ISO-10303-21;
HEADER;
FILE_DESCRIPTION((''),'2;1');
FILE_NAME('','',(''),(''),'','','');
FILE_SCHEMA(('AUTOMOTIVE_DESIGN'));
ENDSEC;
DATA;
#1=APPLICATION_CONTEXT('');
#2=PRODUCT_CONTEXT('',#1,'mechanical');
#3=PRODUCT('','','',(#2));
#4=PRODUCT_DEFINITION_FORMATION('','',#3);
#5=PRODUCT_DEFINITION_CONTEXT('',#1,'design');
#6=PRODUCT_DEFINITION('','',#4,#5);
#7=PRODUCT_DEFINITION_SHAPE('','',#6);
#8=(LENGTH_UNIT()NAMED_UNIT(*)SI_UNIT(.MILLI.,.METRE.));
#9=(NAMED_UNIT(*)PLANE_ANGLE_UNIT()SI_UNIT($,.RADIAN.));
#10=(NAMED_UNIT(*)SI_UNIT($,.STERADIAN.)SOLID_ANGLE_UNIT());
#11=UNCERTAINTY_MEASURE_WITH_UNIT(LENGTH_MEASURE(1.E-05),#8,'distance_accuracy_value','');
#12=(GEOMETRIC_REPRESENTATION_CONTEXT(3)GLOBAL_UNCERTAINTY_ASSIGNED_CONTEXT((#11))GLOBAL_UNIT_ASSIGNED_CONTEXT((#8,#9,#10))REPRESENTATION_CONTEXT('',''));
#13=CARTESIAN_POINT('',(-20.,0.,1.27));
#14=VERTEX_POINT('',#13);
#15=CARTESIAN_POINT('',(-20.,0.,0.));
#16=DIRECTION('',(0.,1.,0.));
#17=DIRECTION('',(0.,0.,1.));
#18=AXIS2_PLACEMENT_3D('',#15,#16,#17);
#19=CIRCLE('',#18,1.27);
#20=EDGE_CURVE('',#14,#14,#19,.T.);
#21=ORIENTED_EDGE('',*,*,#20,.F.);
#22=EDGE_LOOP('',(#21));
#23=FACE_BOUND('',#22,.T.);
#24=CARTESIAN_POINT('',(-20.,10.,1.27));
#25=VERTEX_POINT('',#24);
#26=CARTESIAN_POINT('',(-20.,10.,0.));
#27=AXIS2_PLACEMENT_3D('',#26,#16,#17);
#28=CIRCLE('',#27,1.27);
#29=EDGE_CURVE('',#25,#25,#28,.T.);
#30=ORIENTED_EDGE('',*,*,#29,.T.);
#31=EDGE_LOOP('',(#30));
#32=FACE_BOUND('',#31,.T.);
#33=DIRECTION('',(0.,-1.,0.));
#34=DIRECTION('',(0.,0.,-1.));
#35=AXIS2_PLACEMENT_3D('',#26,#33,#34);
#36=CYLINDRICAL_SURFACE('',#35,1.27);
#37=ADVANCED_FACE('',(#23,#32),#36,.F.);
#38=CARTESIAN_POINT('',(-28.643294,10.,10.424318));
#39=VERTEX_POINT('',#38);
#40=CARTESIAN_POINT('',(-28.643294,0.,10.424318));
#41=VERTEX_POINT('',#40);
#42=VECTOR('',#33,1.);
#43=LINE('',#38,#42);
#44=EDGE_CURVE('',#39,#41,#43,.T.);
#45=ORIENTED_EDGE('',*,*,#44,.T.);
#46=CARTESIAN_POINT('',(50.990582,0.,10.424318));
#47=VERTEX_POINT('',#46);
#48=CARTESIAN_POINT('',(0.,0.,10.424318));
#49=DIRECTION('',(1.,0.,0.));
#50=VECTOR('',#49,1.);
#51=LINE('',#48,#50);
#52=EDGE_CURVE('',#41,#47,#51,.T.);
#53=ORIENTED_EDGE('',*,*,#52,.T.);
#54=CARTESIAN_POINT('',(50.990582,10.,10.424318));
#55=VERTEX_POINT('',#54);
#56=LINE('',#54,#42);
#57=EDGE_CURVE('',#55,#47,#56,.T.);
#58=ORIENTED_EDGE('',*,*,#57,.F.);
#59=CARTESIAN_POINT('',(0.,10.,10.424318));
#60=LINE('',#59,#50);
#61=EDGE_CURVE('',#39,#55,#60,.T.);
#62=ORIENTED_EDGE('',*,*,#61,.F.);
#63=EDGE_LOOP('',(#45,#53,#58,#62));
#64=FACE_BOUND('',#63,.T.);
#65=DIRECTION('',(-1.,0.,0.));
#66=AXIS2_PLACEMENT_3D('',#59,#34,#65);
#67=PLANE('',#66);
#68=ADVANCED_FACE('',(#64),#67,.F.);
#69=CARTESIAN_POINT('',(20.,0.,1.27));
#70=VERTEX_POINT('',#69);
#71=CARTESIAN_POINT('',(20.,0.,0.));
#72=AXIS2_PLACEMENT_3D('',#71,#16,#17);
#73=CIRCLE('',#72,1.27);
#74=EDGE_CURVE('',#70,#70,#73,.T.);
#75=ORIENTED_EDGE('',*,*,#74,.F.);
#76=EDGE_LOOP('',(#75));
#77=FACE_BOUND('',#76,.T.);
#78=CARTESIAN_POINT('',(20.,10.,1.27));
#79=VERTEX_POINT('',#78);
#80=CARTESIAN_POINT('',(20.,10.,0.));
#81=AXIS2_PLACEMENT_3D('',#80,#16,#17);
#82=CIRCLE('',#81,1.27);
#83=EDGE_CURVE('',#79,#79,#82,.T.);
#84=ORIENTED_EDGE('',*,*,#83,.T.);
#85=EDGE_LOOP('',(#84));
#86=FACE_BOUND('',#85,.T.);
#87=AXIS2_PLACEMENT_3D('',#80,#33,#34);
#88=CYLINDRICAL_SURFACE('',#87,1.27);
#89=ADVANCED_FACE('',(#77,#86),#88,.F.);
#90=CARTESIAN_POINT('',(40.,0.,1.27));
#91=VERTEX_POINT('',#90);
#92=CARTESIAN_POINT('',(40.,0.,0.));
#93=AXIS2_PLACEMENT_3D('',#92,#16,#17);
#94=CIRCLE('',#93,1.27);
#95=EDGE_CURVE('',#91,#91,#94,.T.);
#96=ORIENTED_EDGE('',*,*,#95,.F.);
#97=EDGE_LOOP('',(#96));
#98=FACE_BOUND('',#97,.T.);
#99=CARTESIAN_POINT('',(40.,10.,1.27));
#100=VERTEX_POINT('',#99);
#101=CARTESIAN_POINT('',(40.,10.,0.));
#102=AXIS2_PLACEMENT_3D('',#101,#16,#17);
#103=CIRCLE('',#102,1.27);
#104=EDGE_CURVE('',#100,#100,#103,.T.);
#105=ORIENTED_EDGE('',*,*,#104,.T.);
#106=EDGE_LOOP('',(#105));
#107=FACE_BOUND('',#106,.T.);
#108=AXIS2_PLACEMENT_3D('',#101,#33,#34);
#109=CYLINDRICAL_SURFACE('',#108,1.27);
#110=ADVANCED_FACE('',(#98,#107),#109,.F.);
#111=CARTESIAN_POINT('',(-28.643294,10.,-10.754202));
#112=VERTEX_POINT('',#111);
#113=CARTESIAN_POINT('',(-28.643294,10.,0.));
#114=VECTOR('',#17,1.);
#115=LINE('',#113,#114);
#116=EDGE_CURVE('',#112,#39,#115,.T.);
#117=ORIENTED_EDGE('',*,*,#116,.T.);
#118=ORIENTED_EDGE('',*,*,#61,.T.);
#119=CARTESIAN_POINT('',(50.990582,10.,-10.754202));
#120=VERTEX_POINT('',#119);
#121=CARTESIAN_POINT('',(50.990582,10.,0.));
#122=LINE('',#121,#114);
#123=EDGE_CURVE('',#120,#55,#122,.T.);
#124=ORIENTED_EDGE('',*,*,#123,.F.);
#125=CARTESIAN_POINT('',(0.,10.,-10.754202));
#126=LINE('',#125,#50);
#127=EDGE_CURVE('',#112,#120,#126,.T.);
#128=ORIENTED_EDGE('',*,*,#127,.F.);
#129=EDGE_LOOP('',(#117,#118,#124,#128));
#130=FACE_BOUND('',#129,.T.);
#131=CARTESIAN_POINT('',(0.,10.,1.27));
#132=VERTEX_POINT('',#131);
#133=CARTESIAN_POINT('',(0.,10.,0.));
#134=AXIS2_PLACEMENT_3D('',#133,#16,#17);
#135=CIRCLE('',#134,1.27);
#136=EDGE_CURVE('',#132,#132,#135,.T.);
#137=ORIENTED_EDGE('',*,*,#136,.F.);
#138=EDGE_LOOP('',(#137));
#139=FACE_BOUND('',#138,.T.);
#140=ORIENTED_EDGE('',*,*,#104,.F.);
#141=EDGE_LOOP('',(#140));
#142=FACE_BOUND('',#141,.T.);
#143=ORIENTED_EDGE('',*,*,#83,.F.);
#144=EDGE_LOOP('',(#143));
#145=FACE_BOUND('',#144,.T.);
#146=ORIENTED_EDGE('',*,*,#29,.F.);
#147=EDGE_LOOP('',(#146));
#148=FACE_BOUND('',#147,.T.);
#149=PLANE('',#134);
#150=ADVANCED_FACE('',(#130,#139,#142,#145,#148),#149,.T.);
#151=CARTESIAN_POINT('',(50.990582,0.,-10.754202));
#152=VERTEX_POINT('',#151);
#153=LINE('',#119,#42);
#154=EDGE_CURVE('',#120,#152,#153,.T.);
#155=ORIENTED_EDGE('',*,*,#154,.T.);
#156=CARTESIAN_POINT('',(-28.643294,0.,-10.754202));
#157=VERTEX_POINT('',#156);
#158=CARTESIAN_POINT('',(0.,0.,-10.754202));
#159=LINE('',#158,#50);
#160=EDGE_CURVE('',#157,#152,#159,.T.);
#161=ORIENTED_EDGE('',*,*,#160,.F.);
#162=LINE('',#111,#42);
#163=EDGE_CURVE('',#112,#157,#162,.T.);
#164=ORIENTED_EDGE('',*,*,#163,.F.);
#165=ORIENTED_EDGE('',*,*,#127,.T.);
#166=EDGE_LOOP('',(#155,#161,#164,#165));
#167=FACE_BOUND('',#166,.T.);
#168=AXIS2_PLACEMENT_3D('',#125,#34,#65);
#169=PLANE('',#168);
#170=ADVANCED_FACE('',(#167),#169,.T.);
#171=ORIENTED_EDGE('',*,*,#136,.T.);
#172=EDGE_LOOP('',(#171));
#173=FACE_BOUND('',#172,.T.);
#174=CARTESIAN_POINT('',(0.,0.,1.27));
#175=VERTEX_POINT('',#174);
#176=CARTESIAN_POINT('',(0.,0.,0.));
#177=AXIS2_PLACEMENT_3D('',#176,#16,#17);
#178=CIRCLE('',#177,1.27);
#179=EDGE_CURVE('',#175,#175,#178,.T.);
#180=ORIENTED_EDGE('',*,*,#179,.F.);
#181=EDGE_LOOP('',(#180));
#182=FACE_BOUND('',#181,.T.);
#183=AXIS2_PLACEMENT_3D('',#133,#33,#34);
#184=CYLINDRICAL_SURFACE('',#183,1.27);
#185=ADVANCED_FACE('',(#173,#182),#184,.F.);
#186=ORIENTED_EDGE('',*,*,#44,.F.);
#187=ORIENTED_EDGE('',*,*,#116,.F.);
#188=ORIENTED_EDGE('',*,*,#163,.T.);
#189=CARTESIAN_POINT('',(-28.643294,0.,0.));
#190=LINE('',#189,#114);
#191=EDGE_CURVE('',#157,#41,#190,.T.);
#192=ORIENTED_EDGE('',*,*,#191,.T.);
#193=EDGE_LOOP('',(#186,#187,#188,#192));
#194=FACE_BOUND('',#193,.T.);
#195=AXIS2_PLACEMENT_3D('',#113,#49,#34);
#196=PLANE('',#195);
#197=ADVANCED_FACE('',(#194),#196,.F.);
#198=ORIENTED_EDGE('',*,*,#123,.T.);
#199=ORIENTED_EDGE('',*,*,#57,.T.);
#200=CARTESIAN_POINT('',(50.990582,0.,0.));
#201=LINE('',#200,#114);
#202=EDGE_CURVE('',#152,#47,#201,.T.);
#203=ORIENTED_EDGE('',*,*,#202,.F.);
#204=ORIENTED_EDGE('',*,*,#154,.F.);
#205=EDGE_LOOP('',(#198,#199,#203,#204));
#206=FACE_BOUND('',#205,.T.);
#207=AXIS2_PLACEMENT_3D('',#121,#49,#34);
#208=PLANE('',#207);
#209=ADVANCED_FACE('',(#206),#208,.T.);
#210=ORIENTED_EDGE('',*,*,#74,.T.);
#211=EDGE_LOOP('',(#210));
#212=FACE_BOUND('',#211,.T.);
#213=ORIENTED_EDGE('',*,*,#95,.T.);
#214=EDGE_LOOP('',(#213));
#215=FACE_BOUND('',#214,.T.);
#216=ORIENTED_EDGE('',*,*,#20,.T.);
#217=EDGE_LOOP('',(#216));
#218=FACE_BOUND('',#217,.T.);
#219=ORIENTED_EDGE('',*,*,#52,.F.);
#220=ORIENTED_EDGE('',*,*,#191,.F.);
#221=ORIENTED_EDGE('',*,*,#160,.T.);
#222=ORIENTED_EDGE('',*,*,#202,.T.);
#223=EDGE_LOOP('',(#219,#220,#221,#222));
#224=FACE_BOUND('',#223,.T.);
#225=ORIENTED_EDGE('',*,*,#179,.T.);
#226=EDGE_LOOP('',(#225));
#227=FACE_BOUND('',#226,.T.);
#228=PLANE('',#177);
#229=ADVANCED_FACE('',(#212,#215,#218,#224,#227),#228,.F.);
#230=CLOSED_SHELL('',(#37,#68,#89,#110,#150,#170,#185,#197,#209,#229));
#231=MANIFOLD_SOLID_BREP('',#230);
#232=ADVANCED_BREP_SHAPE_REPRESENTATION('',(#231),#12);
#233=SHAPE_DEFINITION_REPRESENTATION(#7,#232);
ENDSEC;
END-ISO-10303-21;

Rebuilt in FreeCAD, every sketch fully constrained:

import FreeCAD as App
import Part
import Sketcher

V = App.Vector
Q = App.Units.Quantity

doc = App.newDocument("Part")
body = doc.addObject("PartDesign::Body", "Body")

sketch1 = doc.addObject("Sketcher::SketchObject", "Sketch")
body.addObject(sketch1)
sketch1.AttachmentSupport = (doc.XZ_Plane, [""])
sketch1.MapMode = "FlatFace"
sketch1.addGeometry([
    Part.LineSegment(V(-28.6, -10.8, 0), V(-28.6, 10.4, 0)),
    Part.LineSegment(V(-28.6, 10.4, 0), V(51, 10.4, 0)),
    Part.LineSegment(V(51, 10.4, 0), V(51, -10.8, 0)),
    Part.LineSegment(V(51, -10.8, 0), V(-28.6, -10.8, 0)),
    Part.Circle(V(-20, 0, 0), V(0, 0, 1), 1.3),
    Part.Circle(V(0, 0, 0), V(0, 0, 1), 1.3),
    Part.Circle(V(20, 0, 0), V(0, 0, 1), 1.3),
    Part.Circle(V(40, 0, 0), V(0, 0, 1), 1.3),
], False)
sketch1.addConstraint([
    Sketcher.Constraint("Coincident", 0, 2, 1, 1),
    Sketcher.Constraint("Coincident", 1, 2, 2, 1),
    Sketcher.Constraint("Coincident", 2, 2, 3, 1),
    Sketcher.Constraint("Coincident", 3, 2, 0, 1),
    Sketcher.Constraint("Vertical", 0),
    Sketcher.Constraint("Horizontal", 1),
    Sketcher.Constraint("Vertical", 2),
    Sketcher.Constraint("Horizontal", 3),
    Sketcher.Constraint("Coincident", 5, 3, -1, 1),
    Sketcher.Constraint("Equal", 4, 5),
    Sketcher.Constraint("Equal", 5, 6),
    Sketcher.Constraint("Equal", 6, 7),
    Sketcher.Constraint("Symmetric", 4, 3, 6, 3, -1, 1),
    Sketcher.Constraint("PointOnObject", 4, 3, -1),
    Sketcher.Constraint("PointOnObject", 7, 3, -1),
    Sketcher.Constraint("Diameter", 4, Q("2.54 mm")),
    Sketcher.Constraint("DistanceX", 4, 3, -1, 1, Q("20 mm")),
    Sketcher.Constraint("DistanceX", -1, 1, 7, 3, Q("40 mm")),
    Sketcher.Constraint("DistanceY", 0, 1, 0, 2, Q("21.17852 mm")),
    Sketcher.Constraint("DistanceY", 2, 2, -1, 1, Q("10.754202 mm")),
    Sketcher.Constraint("DistanceX", 1, 1, 1, 2, Q("79.633876 mm")),
    Sketcher.Constraint("DistanceX", -1, 1, 1, 2, Q("50.990582 mm")),
])
pad1 = doc.addObject("PartDesign::Pad", "Pad")
body.addObject(pad1)
pad1.Profile = sketch1
pad1.Length = 10
pad1.Reversed = True

doc.recompute()
